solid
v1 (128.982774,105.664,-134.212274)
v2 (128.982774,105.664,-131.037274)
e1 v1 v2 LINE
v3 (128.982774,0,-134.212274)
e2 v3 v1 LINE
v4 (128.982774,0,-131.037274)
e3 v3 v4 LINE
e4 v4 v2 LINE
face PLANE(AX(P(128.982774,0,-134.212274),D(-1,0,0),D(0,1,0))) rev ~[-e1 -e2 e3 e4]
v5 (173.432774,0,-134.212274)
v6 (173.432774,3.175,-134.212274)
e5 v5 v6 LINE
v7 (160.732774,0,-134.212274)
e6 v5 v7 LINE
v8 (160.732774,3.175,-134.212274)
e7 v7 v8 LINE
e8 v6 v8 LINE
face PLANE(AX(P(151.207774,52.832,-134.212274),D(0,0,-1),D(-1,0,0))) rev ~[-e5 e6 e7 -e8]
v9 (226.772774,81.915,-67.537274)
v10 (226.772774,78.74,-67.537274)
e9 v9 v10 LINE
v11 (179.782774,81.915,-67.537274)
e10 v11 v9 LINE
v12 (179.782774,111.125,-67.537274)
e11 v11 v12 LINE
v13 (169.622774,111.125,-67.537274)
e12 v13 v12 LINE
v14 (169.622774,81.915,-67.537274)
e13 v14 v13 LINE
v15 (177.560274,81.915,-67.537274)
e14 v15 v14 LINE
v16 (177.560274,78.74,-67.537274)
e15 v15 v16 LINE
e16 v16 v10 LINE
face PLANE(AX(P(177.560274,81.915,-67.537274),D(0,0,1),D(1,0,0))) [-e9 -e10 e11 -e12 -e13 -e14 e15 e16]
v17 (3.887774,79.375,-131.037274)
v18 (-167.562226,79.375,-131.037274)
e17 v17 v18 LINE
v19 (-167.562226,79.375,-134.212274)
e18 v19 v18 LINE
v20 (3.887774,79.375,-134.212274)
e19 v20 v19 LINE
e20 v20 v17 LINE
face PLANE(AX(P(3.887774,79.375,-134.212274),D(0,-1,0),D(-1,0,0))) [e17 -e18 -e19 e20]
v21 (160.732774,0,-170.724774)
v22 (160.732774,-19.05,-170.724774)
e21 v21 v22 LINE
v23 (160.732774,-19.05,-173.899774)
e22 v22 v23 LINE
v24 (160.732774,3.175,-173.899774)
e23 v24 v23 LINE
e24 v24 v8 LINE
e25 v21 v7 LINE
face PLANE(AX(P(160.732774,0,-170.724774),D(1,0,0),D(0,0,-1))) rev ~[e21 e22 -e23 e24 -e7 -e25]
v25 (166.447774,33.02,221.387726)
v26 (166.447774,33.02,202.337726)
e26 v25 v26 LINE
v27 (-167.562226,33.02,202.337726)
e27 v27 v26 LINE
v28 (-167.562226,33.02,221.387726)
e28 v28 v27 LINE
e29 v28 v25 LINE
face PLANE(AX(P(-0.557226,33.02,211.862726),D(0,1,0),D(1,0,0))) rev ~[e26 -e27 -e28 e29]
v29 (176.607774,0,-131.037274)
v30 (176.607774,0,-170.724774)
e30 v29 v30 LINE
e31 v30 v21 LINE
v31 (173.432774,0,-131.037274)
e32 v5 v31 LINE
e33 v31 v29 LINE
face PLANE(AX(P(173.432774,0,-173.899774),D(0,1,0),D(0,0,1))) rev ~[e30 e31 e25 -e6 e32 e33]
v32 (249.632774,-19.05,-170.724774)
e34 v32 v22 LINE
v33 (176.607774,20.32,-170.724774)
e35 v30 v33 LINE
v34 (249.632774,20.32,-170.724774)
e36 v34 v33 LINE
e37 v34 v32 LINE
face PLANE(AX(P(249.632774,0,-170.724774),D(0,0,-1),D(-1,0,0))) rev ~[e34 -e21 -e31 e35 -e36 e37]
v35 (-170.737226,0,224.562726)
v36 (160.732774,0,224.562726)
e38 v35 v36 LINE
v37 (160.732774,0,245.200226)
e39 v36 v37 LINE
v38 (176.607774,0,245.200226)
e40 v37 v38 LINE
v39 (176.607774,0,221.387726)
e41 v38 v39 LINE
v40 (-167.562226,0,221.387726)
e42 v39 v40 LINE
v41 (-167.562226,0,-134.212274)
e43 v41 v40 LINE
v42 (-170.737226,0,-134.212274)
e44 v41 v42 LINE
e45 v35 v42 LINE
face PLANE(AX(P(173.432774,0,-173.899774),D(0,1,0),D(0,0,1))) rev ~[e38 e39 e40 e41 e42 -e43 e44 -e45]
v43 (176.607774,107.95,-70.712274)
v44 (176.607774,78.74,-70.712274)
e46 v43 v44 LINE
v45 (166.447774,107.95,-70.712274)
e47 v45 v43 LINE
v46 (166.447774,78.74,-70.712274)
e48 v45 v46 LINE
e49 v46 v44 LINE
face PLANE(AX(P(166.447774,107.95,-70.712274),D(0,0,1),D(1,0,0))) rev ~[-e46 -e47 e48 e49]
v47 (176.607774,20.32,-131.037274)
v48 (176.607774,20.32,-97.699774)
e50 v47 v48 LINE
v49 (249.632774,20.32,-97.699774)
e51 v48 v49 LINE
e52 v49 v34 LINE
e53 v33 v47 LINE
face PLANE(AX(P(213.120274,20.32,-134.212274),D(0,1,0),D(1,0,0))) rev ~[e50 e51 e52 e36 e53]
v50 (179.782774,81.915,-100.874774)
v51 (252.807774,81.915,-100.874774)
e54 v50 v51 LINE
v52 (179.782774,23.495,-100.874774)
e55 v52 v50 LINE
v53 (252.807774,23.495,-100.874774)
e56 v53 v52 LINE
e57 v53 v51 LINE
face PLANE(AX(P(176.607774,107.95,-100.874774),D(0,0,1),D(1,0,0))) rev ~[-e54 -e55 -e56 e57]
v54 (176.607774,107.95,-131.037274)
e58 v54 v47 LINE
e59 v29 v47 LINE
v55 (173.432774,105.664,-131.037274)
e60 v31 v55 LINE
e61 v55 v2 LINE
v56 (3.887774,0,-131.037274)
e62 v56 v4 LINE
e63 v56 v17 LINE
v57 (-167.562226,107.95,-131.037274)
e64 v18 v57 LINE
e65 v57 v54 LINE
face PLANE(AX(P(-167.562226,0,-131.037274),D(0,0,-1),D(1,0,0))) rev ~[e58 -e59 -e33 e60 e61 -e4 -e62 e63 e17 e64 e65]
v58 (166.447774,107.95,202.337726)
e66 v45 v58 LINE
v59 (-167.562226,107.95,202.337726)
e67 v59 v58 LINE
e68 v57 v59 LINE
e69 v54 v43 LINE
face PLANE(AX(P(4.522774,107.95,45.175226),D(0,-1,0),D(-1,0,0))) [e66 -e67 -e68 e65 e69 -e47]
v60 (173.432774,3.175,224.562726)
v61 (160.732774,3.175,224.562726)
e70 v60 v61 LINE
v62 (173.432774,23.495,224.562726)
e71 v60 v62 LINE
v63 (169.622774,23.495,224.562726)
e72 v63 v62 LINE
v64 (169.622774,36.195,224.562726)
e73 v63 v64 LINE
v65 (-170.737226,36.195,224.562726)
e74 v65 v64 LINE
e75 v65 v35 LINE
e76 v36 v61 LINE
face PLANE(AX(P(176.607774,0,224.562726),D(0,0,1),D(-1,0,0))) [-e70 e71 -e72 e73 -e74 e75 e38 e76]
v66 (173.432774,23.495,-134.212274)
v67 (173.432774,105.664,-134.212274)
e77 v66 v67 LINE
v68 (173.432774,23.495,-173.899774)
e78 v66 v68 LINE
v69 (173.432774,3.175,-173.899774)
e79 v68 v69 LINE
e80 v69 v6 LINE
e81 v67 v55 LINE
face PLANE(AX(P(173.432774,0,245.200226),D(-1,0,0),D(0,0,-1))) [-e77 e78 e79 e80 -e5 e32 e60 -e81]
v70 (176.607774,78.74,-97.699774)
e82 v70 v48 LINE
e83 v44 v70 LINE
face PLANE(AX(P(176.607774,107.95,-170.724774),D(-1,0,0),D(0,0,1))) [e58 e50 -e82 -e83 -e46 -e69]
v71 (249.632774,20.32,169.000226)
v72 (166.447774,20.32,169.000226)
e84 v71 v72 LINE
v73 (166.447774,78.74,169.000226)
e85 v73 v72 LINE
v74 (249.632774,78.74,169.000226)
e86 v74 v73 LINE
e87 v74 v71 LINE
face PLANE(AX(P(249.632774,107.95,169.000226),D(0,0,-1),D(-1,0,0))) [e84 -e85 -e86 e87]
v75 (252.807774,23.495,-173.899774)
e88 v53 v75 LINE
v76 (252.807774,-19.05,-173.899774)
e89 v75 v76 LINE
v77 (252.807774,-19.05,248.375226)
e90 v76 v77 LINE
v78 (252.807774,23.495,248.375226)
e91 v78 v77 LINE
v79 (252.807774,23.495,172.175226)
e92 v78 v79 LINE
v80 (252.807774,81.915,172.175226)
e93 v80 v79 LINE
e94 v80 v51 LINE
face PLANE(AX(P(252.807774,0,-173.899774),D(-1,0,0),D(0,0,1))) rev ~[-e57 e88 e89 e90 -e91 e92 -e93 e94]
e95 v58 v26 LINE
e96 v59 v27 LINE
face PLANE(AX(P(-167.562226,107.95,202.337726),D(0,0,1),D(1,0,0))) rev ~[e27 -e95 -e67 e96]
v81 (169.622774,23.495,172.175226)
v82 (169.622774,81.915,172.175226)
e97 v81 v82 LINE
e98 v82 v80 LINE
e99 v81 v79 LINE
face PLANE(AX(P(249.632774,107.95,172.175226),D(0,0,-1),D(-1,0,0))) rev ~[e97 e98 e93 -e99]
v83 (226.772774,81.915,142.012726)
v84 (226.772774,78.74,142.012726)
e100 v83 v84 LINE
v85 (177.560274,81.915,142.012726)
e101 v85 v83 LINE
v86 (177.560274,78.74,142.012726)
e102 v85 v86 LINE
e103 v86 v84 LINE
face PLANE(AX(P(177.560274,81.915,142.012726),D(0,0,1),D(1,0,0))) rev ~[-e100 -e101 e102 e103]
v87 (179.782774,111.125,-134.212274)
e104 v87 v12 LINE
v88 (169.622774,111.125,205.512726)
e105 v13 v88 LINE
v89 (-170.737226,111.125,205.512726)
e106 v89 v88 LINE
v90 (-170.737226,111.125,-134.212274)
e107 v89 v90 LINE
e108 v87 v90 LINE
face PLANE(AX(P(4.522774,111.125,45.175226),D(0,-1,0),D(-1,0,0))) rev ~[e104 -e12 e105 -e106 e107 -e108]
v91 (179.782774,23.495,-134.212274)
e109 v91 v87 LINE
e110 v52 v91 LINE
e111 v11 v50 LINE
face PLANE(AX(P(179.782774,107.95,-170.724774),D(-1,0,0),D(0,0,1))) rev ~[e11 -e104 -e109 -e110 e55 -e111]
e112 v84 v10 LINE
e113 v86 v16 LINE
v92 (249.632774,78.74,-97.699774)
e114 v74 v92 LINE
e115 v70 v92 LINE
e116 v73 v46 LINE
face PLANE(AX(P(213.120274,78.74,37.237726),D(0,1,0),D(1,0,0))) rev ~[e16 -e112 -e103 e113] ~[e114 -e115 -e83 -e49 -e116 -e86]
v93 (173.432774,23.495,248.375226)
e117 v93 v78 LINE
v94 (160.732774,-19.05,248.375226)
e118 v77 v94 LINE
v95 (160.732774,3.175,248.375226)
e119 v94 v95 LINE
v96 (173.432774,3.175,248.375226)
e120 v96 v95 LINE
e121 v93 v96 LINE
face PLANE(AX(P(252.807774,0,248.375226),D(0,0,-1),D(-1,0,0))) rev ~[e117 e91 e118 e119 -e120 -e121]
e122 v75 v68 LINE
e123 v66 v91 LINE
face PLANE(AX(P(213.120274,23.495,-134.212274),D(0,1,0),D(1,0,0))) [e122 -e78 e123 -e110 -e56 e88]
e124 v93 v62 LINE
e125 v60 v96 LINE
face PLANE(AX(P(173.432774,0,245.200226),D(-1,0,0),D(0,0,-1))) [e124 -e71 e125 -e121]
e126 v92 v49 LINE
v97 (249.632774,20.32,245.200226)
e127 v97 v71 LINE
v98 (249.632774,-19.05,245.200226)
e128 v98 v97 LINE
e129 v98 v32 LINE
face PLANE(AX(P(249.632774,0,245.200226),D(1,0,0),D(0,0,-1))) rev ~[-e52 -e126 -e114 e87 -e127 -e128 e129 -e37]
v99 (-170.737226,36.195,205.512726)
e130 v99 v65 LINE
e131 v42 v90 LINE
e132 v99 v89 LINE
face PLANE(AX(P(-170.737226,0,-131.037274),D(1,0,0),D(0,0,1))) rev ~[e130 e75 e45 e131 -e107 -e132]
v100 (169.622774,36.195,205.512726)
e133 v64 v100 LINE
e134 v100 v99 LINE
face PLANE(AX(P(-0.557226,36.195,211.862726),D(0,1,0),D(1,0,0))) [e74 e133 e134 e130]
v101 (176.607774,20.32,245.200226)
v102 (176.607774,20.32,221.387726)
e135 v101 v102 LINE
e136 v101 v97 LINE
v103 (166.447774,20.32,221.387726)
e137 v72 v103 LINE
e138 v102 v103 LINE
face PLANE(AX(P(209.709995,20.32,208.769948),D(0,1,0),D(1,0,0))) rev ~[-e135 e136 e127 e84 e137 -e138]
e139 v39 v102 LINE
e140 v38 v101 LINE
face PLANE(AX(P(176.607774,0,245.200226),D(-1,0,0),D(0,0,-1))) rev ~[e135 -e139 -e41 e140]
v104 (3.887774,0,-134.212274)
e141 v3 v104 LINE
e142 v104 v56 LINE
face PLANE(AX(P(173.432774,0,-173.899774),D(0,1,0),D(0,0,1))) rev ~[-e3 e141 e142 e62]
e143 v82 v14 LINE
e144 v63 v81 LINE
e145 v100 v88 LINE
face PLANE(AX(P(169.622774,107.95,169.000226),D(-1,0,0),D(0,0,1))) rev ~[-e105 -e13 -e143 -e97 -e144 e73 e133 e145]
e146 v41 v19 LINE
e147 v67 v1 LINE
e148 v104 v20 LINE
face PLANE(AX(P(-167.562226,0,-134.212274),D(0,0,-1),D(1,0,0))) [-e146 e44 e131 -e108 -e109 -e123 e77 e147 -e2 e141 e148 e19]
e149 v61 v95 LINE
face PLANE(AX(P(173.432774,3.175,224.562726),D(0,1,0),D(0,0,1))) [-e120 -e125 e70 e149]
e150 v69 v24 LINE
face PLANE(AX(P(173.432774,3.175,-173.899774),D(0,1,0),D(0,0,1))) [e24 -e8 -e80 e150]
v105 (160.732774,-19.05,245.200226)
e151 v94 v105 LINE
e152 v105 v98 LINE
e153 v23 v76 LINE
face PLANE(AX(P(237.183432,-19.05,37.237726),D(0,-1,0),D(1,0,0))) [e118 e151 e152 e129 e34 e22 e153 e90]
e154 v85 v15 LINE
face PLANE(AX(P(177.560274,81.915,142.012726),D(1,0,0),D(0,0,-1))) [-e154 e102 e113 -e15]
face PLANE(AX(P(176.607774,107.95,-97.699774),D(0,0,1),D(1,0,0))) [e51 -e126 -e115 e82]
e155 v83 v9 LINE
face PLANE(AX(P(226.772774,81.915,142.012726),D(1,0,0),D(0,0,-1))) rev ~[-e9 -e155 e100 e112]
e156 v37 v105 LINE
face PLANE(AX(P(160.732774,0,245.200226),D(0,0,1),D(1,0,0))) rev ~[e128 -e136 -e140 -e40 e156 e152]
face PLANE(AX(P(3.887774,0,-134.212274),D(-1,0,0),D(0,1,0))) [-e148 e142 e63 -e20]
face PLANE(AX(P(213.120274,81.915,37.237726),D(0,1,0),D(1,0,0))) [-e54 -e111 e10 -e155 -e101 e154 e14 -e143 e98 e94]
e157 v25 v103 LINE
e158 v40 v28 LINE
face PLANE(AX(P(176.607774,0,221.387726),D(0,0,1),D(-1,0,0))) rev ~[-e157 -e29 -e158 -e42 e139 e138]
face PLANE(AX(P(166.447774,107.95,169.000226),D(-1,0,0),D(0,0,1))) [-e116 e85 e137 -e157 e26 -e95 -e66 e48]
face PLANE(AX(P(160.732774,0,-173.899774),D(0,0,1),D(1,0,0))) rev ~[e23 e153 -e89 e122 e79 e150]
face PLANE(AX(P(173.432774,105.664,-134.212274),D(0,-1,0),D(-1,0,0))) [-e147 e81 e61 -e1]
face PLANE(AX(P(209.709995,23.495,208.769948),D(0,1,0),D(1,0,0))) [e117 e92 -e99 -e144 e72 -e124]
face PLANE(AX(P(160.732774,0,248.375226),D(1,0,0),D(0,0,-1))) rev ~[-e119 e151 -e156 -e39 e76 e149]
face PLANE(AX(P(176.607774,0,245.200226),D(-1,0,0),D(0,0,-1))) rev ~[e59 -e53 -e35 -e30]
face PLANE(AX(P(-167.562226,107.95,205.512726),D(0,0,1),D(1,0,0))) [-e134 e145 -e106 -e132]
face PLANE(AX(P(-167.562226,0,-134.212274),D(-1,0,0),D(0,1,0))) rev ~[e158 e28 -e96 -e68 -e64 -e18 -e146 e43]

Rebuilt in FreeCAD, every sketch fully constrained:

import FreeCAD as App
import Part
import Sketcher

V = App.Vector
Q = App.Units.Quantity


def faces_at(feature, points):
    """Names of the faces that lie closest to the given points."""
    faces = feature.Shape.Faces
    near = lambda p: min(range(len(faces)), key=lambda i: faces[i].distToShape(Part.Vertex(*p))[0])
    return sorted({f"Face{near(p) + 1}" for p in points})


def add_polygon(sketch, points):
    """Adds a closed chain of lines whose ends are joined by coincident constraints."""
    first, n = sketch.GeometryCount, len(points)
    for a, b in zip(points, points[1:] + points[:1]):
        sketch.addGeometry(Part.LineSegment(App.Vector(*a, 0), App.Vector(*b, 0)), False)
    for i in range(n):
        sketch.addConstraint(Sketcher.Constraint("Coincident", first + i, 2, first + (i + 1) % n, 1))

doc = App.newDocument("Part")
body = doc.addObject("PartDesign::Body", "Body")

sketch1 = body.newObject("Sketcher::SketchObject", "Sketch")
sketch1.AttachmentSupport = (doc.getObject("XZ_Plane"), [""])
sketch1.MapMode = "FlatFace"
add_polygon(sketch1, [(-168, 221), (177, 221), (177, -131), (-168, -131)])
sketch1.addConstraint([
    Sketcher.Constraint("Horizontal", 0),
    Sketcher.Constraint("Vertical", 1),
    Sketcher.Constraint("Horizontal", 2),
    Sketcher.Constraint("Vertical", 3),
    Sketcher.Constraint("DistanceX", 0, 1, 0, 2, Q("13.55 in")),
    Sketcher.Constraint("DistanceY", 1, 2, 1, 1, Q("13.875 in")),
    Sketcher.Constraint("DistanceX", -1, 1, 0, 2, Q("176.607774 mm")),
    Sketcher.Constraint("DistanceY", -1, 1, 0, 2, Q("221.387726 mm")),
])
pad1 = body.newObject("PartDesign::Pad", "Pad")
pad1.Profile = sketch1
pad1.Length = Q("4.25 in")
pad1.Reversed = True

sketch2 = body.newObject("Sketcher::SketchObject", "Sketch001")
sketch2.AttachmentSupport = (doc.getObject("XZ_Plane"), [""])
sketch2.MapMode = "FlatFace"
add_polygon(sketch2, [(177, -171), (177, 245), (250, 245), (250, -171)])
sketch2.addConstraint([
    Sketcher.Constraint("Vertical", 0),
    Sketcher.Constraint("Horizontal", 1),
    Sketcher.Constraint("Vertical", 2),
    Sketcher.Constraint("Horizontal", 3),
    Sketcher.Constraint("DistanceX", 1, 1, 1, 2, Q("2.875 in")),
    Sketcher.Constraint("DistanceY", 0, 1, 0, 2, Q("16.375 in")),
    Sketcher.Constraint("DistanceX", -1, 1, 0, 2, Q("176.607774 mm")),
    Sketcher.Constraint("DistanceY", -1, 1, 0, 2, Q("245.200226 mm")),
])
pad2 = body.newObject("PartDesign::Pad", "Pad001")
pad2.Profile = sketch2
pad2.Length = Q("3.1 in")
pad2.Reversed = True

sketch3 = body.newObject("Sketcher::SketchObject", "Sketch002")
sketch3.AttachmentSupport = (doc.getObject("XZ_Plane"), [""])
sketch3.MapMode = "FlatFace"
sketch3.AttachmentOffset = App.Placement(V(0, 0, -4.25 * 25.4), App.Rotation())
add_polygon(sketch3, [(-168, 202), (-168, 221), (166, 221), (166, 202)])
sketch3.addConstraint([
    Sketcher.Constraint("Vertical", 0),
    Sketcher.Constraint("Horizontal", 1),
    Sketcher.Constraint("Vertical", 2),
    Sketcher.Constraint("Horizontal", 3),
    Sketcher.Constraint("DistanceX", 1, 1, 1, 2, Q("13.15 in")),
    Sketcher.Constraint("DistanceY", 0, 1, 0, 2, Q("0.75 in")),
    Sketcher.Constraint("DistanceX", 0, 2, -1, 1, Q("167.562226 mm")),
    Sketcher.Constraint("DistanceY", -1, 1, 0, 2, Q("221.387726 mm")),
])
pocket1 = body.newObject("PartDesign::Pocket", "Pocket")
pocket1.Profile = sketch3
pocket1.Length = Q("2.95 in")
pocket1.Reversed = True

sketch4 = body.newObject("Sketcher::SketchObject", "Sketch003")
sketch4.AttachmentSupport = (doc.getObject("XZ_Plane"), [""])
sketch4.MapMode = "FlatFace"
sketch4.AttachmentOffset = App.Placement(V(0, 0, -4.25 * 25.4), App.Rotation())
add_polygon(sketch4, [(166, 245), (250, 245), (250, 169), (166, 169)])
add_polygon(sketch4, [(177, -98), (250, -98), (250, -171), (177, -171)])
sketch4.addConstraint([
    Sketcher.Constraint("Horizontal", 0),
    Sketcher.Constraint("Vertical", 1),
    Sketcher.Constraint("Horizontal", 2),
    Sketcher.Constraint("Vertical", 3),
    Sketcher.Constraint("Horizontal", 4),
    Sketcher.Constraint("Vertical", 5),
    Sketcher.Constraint("Horizontal", 6),
    Sketcher.Constraint("Vertical", 7),
    Sketcher.Constraint("Vertical", 1, 2, 4, 2),
    Sketcher.Constraint("Equal", 6, 5),
    Sketcher.Constraint("DistanceY", 1, 2, 1, 1, Q("3 in")),
    Sketcher.Constraint("DistanceY", 4, 2, 1, 2, Q("10.5 in")),
    Sketcher.Constraint("DistanceX", 2, 2, 6, 2, Q("0.4 in")),
    Sketcher.Constraint("DistanceX", 0, 1, 0, 2, Q("3.275 in")),
    Sketcher.Constraint("DistanceX", -1, 1, 0, 2, Q("249.632774 mm")),
    Sketcher.Constraint("DistanceY", -1, 1, 0, 2, Q("245.200226 mm")),
])
pocket2 = body.newObject("PartDesign::Pocket", "Pocket001")
pocket2.Profile = sketch4
pocket2.Length = Q("3.45 in")
pocket2.Reversed = True

sketch5 = body.newObject("Sketcher::SketchObject", "Sketch004")
sketch5.AttachmentSupport = (doc.getObject("XZ_Plane"), [""])
sketch5.MapMode = "FlatFace"
sketch5.AttachmentOffset = App.Placement(V(0, 0, -4.25 * 25.4), App.Rotation())
add_polygon(sketch5, [(166, -71), (166, 169), (177, 169), (177, -71)])
sketch5.addConstraint([
    Sketcher.Constraint("Vertical", 0),
    Sketcher.Constraint("Horizontal", 1),
    Sketcher.Constraint("Vertical", 2),
    Sketcher.Constraint("Horizontal", 3),
    Sketcher.Constraint("DistanceX", 1, 1, 1, 2, Q("0.4 in")),
    Sketcher.Constraint("DistanceY", 0, 1, 0, 2, Q("9.4375 in")),
    Sketcher.Constraint("DistanceX", -1, 1, 0, 2, Q("166.447774 mm")),
    Sketcher.Constraint("DistanceY", -1, 1, 0, 2, Q("169.000226 mm")),
])
pocket3 = body.newObject("PartDesign::Pocket", "Pocket002")
pocket3.Profile = sketch5
pocket3.Length = Q("1.15 in")
pocket3.Reversed = True
doc.recompute()

thickness = body.newObject("PartDesign::Thickness", "Thickness")
thickness.Base = (pocket3, faces_at(pocket3, [(41.035, 0, 37.238)]))
thickness.Value = Q("0.125 in")
thickness.Reversed = False
thickness.Join = "Intersection"

sketch6 = body.newObject("Sketcher::SketchObject", "Sketch005")
sketch6.AttachmentSupport = (doc.getObject("YZ_Plane"), [""])
sketch6.MapMode = "FlatFace"
sketch6.AttachmentOffset = App.Placement(V(0, 0, 173.432774), App.Rotation())
add_polygon(sketch6, [(3.2, -173.9), (0, -173.9), (0, -134.2), (3.2, -134.2)])
add_polygon(sketch6, [(3.2, 224.6), (0, 224.6), (0, 248.4), (3.2, 248.4)])
sketch6.addConstraint([
    Sketcher.Constraint("Horizontal", 0),
    Sketcher.Constraint("Vertical", 1),
    Sketcher.Constraint("Horizontal", 2),
    Sketcher.Constraint("Vertical", 3),
    Sketcher.Constraint("Horizontal", 4),
    Sketcher.Constraint("Vertical", 5),
    Sketcher.Constraint("Horizontal", 6),
    Sketcher.Constraint("Vertical", 7),
    Sketcher.Constraint("PointOnObject", 0, 2, -2),
    Sketcher.Constraint("PointOnObject", 4, 2, -2),
    Sketcher.Constraint("Vertical", 3, 2, 6, 2),
    Sketcher.Constraint("DistanceX", 0, 2, 0, 1, Q("0.125 in")),
    Sketcher.Constraint("DistanceY", 1, 1, 1, 2, Q("1.5625 in")),
    Sketcher.Constraint("DistanceY", 5, 1, 5, 2, Q("0.9375 in")),
    Sketcher.Constraint("DistanceY", 1, 2, 4, 2, Q("14.125 in")),
    Sketcher.Constraint("DistanceY", 0, 2, -1, 1, Q("173.899774 mm")),
])
pad3 = body.newObject("PartDesign::Pad", "Pad002")
pad3.Profile = sketch6
pad3.Length = Q("0.5 in")
pad3.Reversed = True

sketch7 = body.newObject("Sketcher::SketchObject", "Sketch006")
sketch7.AttachmentSupport = (doc.getObject("XZ_Plane"), [""])
sketch7.MapMode = "FlatFace"
add_polygon(sketch7, [(249.6, 245.2), (249.6, -170.7), (160.7, -170.7), (160.7, -173.9), (252.8, -173.9), (252.8, 248.4), (160.7, 248.4), (160.7, 245.2)])
sketch7.addConstraint([
    Sketcher.Constraint("Vertical", 0),
    Sketcher.Constraint("Horizontal", 1),
    Sketcher.Constraint("Vertical", 2),
    Sketcher.Constraint("Horizontal", 3),
    Sketcher.Constraint("Vertical", 4),
    Sketcher.Constraint("Horizontal", 5),
    Sketcher.Constraint("Vertical", 6),
    Sketcher.Constraint("Horizontal", 7),
    Sketcher.Constraint("Vertical", 2, 2, 5, 2),
    Sketcher.Constraint("Equal", 2, 6),
    Sketcher.Constraint("DistanceX", 1, 2, 1, 1, Q("3.5 in")),
    Sketcher.Constraint("DistanceY", 0, 2, 4, 2, Q("16.5 in")),
    Sketcher.Constraint("DistanceX", 3, 1, 3, 2, Q("3.625 in")),
    Sketcher.Constraint("DistanceY", 0, 2, 0, 1, Q("16.375 in")),
    Sketcher.Constraint("DistanceX", -1, 1, 0, 2, Q("249.632774 mm")),
    Sketcher.Constraint("DistanceY", 0, 2, -1, 1, Q("170.724774 mm")),
])
pad4 = body.newObject("PartDesign::Pad", "Pad003")
pad4.Profile = sketch7
pad4.Length = Q("0.75 in")

sketch8 = body.newObject("Sketcher::SketchObject", "Sketch007")
sketch8.AttachmentSupport = (doc.getObject("XZ_Plane"), [""])
sketch8.MapMode = "FlatFace"
sketch8.AttachmentOffset = App.Placement(V(0, 0, -3.225 * 25.4), App.Rotation())
add_polygon(sketch8, [(178, -68), (178, 142), (227, 142), (227, -68)])
sketch8.addConstraint([
    Sketcher.Constraint("Vertical", 0),
    Sketcher.Constraint("Horizontal", 1),
    Sketcher.Constraint("Vertical", 2),
    Sketcher.Constraint("Horizontal", 3),
    Sketcher.Constraint("DistanceY", 0, 1, 0, 2, Q("8.25 in")),
    Sketcher.Constraint("DistanceX", 1, 1, 1, 2, Q("1.9375 in")),
    Sketcher.Constraint("DistanceX", -1, 1, 0, 2, Q("177.560274 mm")),
    Sketcher.Constraint("DistanceY", -1, 1, 0, 2, Q("142.012726 mm")),
])
pocket4 = body.newObject("PartDesign::Pocket", "Pocket003")
pocket4.Profile = sketch8
pocket4.Length = Q("0.3 in")
pocket4.Reversed = True

sketch9 = body.newObject("Sketcher::SketchObject", "Sketch008")
sketch9.AttachmentSupport = (doc.getObject("XY_Plane"), [""])
sketch9.MapMode = "FlatFace"
sketch9.AttachmentOffset = App.Placement(V(0, 0, -134.212274), App.Rotation())
add_polygon(sketch9, [(173, 106), (173, 0), (129, 0), (129, 106)])
add_polygon(sketch9, [(4, 79), (4, 0), (-168, 0), (-168, 79)])
sketch9.addConstraint([
    Sketcher.Constraint("Vertical", 0),
    Sketcher.Constraint("Horizontal", 1),
    Sketcher.Constraint("Vertical", 2),
    Sketcher.Constraint("Horizontal", 3),
    Sketcher.Constraint("Vertical", 4),
    Sketcher.Constraint("Horizontal", 5),
    Sketcher.Constraint("Vertical", 6),
    Sketcher.Constraint("Horizontal", 7),
    Sketcher.Constraint("PointOnObject", 0, 2, -1),
    Sketcher.Constraint("PointOnObject", 4, 2, -1),
    Sketcher.Constraint("DistanceX", 1, 2, 1, 1, Q("1.75 in")),
    Sketcher.Constraint("DistanceX", 5, 2, 5, 1, Q("6.75 in")),
    Sketcher.Constraint("DistanceY", 0, 2, 0, 1, Q("4.16 in")),
    Sketcher.Constraint("DistanceY", 4, 2, 4, 1, Q("3.125 in")),
    Sketcher.Constraint("DistanceX", 4, 2, 1, 2, Q("4.925 in")),
    Sketcher.Constraint("DistanceX", -1, 1, 0, 2, Q("173.432774 mm")),
])
pocket5 = body.newObject("PartDesign::Pocket", "Pocket004")
pocket5.Profile = sketch9
pocket5.Length = Q("0.3 in")
pocket5.Reversed = True

doc.recompute()
